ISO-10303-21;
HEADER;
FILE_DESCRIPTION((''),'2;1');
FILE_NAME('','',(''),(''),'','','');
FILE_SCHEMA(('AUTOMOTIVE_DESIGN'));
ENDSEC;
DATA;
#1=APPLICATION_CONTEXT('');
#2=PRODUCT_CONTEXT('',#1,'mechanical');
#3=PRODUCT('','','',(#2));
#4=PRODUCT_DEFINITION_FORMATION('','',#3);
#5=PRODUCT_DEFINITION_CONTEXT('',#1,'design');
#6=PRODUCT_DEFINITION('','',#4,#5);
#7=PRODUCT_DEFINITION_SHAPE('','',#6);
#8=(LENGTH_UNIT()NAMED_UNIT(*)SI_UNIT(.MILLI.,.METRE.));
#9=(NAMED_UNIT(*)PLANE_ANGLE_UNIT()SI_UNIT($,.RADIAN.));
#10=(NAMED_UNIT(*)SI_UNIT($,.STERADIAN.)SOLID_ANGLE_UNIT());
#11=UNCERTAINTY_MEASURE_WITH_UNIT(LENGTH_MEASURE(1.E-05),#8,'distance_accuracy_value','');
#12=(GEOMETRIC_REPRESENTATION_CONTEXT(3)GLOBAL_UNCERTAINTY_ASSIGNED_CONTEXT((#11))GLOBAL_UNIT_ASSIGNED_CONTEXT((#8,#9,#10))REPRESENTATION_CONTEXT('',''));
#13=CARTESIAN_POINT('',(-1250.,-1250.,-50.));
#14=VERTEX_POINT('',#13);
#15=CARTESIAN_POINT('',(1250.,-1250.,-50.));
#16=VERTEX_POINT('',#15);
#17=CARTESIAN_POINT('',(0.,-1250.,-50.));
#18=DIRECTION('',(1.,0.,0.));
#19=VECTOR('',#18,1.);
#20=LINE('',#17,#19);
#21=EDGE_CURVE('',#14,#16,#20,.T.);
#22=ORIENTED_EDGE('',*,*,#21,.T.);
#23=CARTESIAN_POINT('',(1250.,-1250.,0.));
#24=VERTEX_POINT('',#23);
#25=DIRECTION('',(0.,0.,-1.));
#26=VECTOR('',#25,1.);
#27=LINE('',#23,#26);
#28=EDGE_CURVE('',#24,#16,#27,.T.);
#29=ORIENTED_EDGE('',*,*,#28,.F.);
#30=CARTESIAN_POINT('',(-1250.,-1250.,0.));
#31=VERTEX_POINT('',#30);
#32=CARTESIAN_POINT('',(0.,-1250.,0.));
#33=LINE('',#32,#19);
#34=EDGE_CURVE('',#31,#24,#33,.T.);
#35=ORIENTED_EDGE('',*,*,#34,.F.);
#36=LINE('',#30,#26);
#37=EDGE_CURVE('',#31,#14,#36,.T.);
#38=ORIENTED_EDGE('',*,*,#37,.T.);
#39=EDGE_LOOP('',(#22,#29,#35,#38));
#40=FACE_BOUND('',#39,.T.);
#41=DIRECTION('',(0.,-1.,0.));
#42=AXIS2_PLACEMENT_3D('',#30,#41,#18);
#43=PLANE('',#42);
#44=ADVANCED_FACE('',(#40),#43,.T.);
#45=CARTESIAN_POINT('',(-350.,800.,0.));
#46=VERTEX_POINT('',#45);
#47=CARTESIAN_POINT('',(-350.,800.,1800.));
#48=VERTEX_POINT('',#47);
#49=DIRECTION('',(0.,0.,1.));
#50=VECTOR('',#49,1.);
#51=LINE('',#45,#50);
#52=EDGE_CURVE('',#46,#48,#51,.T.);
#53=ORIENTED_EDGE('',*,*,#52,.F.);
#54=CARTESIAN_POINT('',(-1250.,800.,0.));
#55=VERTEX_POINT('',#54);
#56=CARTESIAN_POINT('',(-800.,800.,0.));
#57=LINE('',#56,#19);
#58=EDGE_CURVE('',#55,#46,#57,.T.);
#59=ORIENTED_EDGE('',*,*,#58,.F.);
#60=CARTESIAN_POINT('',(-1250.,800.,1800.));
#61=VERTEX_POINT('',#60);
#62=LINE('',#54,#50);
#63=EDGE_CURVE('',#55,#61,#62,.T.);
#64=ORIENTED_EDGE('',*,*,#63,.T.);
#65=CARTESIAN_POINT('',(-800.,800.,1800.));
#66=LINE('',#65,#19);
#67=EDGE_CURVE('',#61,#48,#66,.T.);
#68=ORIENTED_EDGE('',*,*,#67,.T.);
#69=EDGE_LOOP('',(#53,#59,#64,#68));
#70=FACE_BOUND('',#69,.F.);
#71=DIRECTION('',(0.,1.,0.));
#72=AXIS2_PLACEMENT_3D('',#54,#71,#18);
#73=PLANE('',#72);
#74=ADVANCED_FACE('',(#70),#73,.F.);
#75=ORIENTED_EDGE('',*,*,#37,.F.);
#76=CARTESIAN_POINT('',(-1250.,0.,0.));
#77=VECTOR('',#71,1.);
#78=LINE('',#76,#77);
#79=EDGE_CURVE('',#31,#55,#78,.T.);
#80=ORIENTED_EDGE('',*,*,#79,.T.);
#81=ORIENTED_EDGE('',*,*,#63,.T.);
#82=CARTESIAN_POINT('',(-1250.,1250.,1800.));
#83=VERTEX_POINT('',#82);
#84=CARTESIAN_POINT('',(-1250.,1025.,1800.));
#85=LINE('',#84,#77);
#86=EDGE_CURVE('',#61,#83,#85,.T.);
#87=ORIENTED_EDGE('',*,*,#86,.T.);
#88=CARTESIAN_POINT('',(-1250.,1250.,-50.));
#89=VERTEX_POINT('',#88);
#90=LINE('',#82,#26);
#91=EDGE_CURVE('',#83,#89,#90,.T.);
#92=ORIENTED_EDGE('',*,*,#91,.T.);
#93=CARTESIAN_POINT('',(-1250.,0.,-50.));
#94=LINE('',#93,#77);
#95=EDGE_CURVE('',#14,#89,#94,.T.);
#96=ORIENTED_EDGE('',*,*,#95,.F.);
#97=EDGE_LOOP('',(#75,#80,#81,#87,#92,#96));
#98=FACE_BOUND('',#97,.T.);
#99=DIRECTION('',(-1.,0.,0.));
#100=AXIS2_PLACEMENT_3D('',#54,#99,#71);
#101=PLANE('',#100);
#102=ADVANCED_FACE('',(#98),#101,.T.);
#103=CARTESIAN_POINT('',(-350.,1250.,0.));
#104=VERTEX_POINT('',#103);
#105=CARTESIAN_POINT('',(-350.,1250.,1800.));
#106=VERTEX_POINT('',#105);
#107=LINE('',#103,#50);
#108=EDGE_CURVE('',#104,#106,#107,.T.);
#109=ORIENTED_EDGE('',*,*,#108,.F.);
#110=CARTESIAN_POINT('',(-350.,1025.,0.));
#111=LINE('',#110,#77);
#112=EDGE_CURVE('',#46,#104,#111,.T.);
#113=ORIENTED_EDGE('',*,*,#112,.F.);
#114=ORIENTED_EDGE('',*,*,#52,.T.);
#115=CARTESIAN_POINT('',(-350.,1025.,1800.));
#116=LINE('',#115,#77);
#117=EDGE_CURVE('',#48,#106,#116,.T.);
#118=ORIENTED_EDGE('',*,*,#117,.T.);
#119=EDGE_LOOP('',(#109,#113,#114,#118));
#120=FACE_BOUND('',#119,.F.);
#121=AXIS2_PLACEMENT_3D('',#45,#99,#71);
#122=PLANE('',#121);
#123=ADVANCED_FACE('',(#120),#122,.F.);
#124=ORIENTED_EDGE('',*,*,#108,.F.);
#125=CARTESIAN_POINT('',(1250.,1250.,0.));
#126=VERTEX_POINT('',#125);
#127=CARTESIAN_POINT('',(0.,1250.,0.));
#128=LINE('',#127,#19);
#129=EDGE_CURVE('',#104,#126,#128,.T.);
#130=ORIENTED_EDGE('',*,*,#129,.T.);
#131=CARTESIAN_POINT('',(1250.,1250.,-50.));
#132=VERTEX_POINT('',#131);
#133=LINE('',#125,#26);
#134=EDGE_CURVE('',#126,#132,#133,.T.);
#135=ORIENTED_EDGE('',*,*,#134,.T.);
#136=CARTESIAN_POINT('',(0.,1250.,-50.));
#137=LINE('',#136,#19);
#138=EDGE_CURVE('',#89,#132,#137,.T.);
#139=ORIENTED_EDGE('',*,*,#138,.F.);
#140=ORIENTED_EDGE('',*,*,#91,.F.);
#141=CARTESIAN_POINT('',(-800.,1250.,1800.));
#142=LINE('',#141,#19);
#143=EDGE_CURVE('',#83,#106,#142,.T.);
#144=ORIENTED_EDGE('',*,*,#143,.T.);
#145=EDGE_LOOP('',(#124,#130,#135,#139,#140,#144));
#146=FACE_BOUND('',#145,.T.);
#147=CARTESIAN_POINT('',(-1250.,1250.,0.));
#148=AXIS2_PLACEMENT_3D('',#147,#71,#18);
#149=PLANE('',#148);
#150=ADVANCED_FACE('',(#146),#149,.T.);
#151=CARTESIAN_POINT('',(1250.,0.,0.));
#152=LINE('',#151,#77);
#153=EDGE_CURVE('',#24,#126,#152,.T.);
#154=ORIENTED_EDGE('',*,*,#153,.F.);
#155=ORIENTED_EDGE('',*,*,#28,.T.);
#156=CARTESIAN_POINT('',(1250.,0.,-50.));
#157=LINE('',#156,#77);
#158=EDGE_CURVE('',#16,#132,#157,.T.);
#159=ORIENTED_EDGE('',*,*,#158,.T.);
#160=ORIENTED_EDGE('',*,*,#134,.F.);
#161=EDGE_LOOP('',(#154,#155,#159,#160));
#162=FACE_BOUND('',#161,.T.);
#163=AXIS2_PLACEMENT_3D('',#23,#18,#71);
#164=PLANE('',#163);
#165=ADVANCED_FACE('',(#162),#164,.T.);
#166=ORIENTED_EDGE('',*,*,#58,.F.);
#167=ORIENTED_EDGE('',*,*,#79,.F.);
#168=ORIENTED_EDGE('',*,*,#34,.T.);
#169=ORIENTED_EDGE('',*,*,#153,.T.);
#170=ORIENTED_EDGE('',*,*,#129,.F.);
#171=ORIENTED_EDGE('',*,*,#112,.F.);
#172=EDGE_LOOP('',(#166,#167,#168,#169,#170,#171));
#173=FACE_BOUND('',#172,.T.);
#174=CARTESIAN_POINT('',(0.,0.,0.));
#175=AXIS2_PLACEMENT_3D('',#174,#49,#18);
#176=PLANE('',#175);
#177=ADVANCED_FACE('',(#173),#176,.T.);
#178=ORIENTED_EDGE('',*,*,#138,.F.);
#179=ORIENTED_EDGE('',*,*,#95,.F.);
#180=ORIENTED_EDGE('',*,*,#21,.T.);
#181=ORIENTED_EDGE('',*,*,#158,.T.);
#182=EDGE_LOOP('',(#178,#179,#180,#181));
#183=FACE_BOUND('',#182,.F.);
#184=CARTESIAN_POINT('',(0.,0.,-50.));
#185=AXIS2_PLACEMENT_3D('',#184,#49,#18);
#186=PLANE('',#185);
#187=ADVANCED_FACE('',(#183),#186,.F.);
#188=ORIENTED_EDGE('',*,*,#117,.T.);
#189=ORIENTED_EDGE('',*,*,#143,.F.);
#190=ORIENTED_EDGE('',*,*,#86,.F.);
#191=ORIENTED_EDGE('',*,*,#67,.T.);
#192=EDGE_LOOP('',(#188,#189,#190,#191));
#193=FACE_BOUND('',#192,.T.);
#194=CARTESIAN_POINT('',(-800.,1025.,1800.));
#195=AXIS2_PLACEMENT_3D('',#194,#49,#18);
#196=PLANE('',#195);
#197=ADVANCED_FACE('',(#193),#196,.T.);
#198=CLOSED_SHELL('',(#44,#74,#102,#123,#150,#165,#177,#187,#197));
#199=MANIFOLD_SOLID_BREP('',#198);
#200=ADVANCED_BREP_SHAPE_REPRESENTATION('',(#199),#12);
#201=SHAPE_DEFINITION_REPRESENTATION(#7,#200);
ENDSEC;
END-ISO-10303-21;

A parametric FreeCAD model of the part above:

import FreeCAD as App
import Part
import Sketcher

V = App.Vector
Q = App.Units.Quantity

doc = App.newDocument("Part")
body = doc.addObject("PartDesign::Body", "Body")

# Sketch on XY plane
sketch1 = body.newObject("Sketcher::SketchObject", "Sketch")
sketch1.AttachmentSupport = (doc.getObject("XY_Plane"), [""])
sketch1.MapMode = "FlatFace"
sketch1.addGeometry(Part.LineSegment(V(-1250, 1250, 0), V(-1250, -1250, 0)), False)
sketch1.addGeometry(Part.LineSegment(V(-1250, -1250, 0), V(1250, -1250, 0)), False)
sketch1.addGeometry(Part.LineSegment(V(1250, -1250, 0), V(1250, 1250, 0)), False)
sketch1.addGeometry(Part.LineSegment(V(1250, 1250, 0), V(-1250, 1250, 0)), False)
sketch1.addConstraint(Sketcher.Constraint("Coincident", 0, 2, 1, 1))
sketch1.addConstraint(Sketcher.Constraint("Coincident", 1, 2, 2, 1))
sketch1.addConstraint(Sketcher.Constraint("Coincident", 2, 2, 3, 1))
sketch1.addConstraint(Sketcher.Constraint("Coincident", 3, 2, 0, 1))
sketch1.addConstraint(Sketcher.Constraint("Vertical", 0))
sketch1.addConstraint(Sketcher.Constraint("Horizontal", 1))
sketch1.addConstraint(Sketcher.Constraint("Vertical", 2))
sketch1.addConstraint(Sketcher.Constraint("Horizontal", 3))
sketch1.addConstraint(Sketcher.Constraint("Symmetric", 0, 2, 2, 2, -1, 1))
sketch1.addConstraint(Sketcher.Constraint("Equal", 3, 0))
sketch1.addConstraint(Sketcher.Constraint("DistanceX", 1, 1, 1, 2, Q("2500 mm")))
pad1 = body.newObject("PartDesign::Pad", "Pad")
pad1.Profile = sketch1
pad1.Length = 50
pad1.Reversed = True

# Sketch on XY plane
sketch2 = body.newObject("Sketcher::SketchObject", "Sketch001")
sketch2.AttachmentSupport = (doc.getObject("XY_Plane"), [""])
sketch2.MapMode = "FlatFace"
sketch2.addGeometry(Part.LineSegment(V(-1250, 1250, 0), V(-1250, 800, 0)), False)
sketch2.addGeometry(Part.LineSegment(V(-1250, 800, 0), V(-350, 800, 0)), False)
sketch2.addGeometry(Part.LineSegment(V(-350, 800, 0), V(-350, 1250, 0)), False)
sketch2.addGeometry(Part.LineSegment(V(-350, 1250, 0), V(-1250, 1250, 0)), False)
sketch2.addConstraint(Sketcher.Constraint("Coincident", 0, 2, 1, 1))
sketch2.addConstraint(Sketcher.Constraint("Coincident", 1, 2, 2, 1))
sketch2.addConstraint(Sketcher.Constraint("Coincident", 2, 2, 3, 1))
sketch2.addConstraint(Sketcher.Constraint("Coincident", 3, 2, 0, 1))
sketch2.addConstraint(Sketcher.Constraint("Vertical", 0))
sketch2.addConstraint(Sketcher.Constraint("Horizontal", 1))
sketch2.addConstraint(Sketcher.Constraint("Vertical", 2))
sketch2.addConstraint(Sketcher.Constraint("Horizontal", 3))
sketch2.addConstraint(Sketcher.Constraint("DistanceX", 1, 1, 1, 2, Q("900 mm")))
sketch2.addConstraint(Sketcher.Constraint("DistanceY", 0, 2, 0, 1, Q("450 mm")))
sketch2.addConstraint(Sketcher.Constraint("DistanceX", 0, 2, -1, 1, Q("1250 mm")))
sketch2.addConstraint(Sketcher.Constraint("DistanceY", -1, 1, 0, 2, Q("800 mm")))
pad2 = body.newObject("PartDesign::Pad", "Pad001")
pad2.Profile = sketch2
pad2.Length = 1800

doc.recompute()
